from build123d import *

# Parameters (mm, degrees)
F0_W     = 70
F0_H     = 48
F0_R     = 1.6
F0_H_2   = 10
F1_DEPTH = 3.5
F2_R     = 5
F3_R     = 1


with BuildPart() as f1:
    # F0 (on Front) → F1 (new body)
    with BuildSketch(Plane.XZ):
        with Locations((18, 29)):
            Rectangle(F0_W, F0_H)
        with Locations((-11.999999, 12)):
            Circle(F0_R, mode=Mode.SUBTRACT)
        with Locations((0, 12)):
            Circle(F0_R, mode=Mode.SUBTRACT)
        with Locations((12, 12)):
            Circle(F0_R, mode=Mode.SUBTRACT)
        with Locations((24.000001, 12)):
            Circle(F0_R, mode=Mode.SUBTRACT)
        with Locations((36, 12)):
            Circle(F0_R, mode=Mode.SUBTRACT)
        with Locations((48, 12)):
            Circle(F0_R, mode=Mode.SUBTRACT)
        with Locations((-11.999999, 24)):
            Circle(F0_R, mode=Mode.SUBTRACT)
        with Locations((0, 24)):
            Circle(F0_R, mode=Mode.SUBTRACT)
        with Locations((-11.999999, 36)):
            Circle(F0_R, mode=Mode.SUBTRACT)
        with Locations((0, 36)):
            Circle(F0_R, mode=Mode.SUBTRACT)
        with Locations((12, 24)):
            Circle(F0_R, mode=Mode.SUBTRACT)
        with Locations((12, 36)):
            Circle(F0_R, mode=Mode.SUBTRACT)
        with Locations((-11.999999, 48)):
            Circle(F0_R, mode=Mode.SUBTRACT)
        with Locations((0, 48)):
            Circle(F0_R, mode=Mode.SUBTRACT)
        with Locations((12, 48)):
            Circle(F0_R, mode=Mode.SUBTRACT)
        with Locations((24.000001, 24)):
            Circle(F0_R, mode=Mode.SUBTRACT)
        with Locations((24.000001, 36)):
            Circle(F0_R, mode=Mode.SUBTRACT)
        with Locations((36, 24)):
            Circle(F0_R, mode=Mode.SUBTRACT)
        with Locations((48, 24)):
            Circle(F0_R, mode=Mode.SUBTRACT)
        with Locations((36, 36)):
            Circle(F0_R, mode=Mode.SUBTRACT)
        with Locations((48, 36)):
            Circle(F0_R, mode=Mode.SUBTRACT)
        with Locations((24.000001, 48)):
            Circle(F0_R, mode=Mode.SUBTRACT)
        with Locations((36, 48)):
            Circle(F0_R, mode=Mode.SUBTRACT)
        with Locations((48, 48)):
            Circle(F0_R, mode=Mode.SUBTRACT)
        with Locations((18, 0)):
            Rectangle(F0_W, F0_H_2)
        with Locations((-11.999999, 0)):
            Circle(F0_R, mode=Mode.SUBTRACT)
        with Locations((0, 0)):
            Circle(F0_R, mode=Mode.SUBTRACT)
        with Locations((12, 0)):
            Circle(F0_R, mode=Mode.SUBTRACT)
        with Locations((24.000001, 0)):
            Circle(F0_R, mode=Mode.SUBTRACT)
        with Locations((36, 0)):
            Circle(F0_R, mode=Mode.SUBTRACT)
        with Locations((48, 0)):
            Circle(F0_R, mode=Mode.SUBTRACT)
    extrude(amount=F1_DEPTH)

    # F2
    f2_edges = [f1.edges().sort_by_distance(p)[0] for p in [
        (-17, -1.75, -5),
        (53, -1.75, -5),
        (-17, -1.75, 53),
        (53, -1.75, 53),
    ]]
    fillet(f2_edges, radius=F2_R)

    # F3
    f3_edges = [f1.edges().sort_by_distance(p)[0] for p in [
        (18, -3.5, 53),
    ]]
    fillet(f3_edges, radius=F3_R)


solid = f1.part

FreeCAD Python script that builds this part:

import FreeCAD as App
import Part
import Sketcher
Q = App.Units.Quantity


def edges_at(feature, points):
    """Names of the edges that pass closest to the given points."""
    edges = feature.Shape.Edges
    near = lambda p: min(range(len(edges)), key=lambda i: edges[i].distToShape(Part.Vertex(*p))[0])
    return sorted({f"Edge{near(p) + 1}" for p in points})


def add_polygon(sketch, points):
    """Adds a closed chain of lines whose ends are joined by coincident constraints."""
    first, n = sketch.GeometryCount, len(points)
    for a, b in zip(points, points[1:] + points[:1]):
        sketch.addGeometry(Part.LineSegment(App.Vector(*a, 0), App.Vector(*b, 0)), False)
    for i in range(n):
        sketch.addConstraint(Sketcher.Constraint("Coincident", first + i, 2, first + (i + 1) % n, 1))

doc = App.newDocument("Part")
body = doc.addObject("PartDesign::Body", "Body")

sketch1 = body.newObject("Sketcher::SketchObject", "Sketch")
sketch1.AttachmentSupport = (doc.getObject("XZ_Plane"), [""])
sketch1.MapMode = "FlatFace"
add_polygon(sketch1, [(-17, 53), (-17, -5), (53, -5), (53, 53)])
sketch1.addGeometry(Part.Circle(App.Vector(-12, 0, 0), App.Vector(0, 0, 1), 1.6), False)
sketch1.addGeometry(Part.Circle(App.Vector(0, 0, 0), App.Vector(0, 0, 1), 1.6), False)
sketch1.addGeometry(Part.Circle(App.Vector(12, 0, 0), App.Vector(0, 0, 1), 1.6), False)
sketch1.addGeometry(Part.Circle(App.Vector(-12, 12, 0), App.Vector(0, 0, 1), 1.6), False)
sketch1.addGeometry(Part.Circle(App.Vector(0, 12, 0), App.Vector(0, 0, 1), 1.6), False)
sketch1.addGeometry(Part.Circle(App.Vector(12, 12, 0), App.Vector(0, 0, 1), 1.6), False)
sketch1.addGeometry(Part.Circle(App.Vector(24, 0, 0), App.Vector(0, 0, 1), 1.6), False)
sketch1.addGeometry(Part.Circle(App.Vector(36, 0, 0), App.Vector(0, 0, 1), 1.6), False)
sketch1.addGeometry(Part.Circle(App.Vector(48, 0, 0), App.Vector(0, 0, 1), 1.6), False)
sketch1.addGeometry(Part.Circle(App.Vector(24, 12, 0), App.Vector(0, 0, 1), 1.6), False)
sketch1.addGeometry(Part.Circle(App.Vector(36, 12, 0), App.Vector(0, 0, 1), 1.6), False)
sketch1.addGeometry(Part.Circle(App.Vector(48, 12, 0), App.Vector(0, 0, 1), 1.6), False)
sketch1.addGeometry(Part.Circle(App.Vector(-12, 24, 0), App.Vector(0, 0, 1), 1.6), False)
sketch1.addGeometry(Part.Circle(App.Vector(0, 24, 0), App.Vector(0, 0, 1), 1.6), False)
sketch1.addGeometry(Part.Circle(App.Vector(-12, 36, 0), App.Vector(0, 0, 1), 1.6), False)
sketch1.addGeometry(Part.Circle(App.Vector(0, 36, 0), App.Vector(0, 0, 1), 1.6), False)
sketch1.addGeometry(Part.Circle(App.Vector(12, 24, 0), App.Vector(0, 0, 1), 1.6), False)
sketch1.addGeometry(Part.Circle(App.Vector(12, 36, 0), App.Vector(0, 0, 1), 1.6), False)
sketch1.addGeometry(Part.Circle(App.Vector(-12, 48, 0), App.Vector(0, 0, 1), 1.6), False)
sketch1.addGeometry(Part.Circle(App.Vector(0, 48, 0), App.Vector(0, 0, 1), 1.6), False)
sketch1.addGeometry(Part.Circle(App.Vector(12, 48, 0), App.Vector(0, 0, 1), 1.6), False)
sketch1.addGeometry(Part.Circle(App.Vector(24, 24, 0), App.Vector(0, 0, 1), 1.6), False)
sketch1.addGeometry(Part.Circle(App.Vector(24, 36, 0), App.Vector(0, 0, 1), 1.6), False)
sketch1.addGeometry(Part.Circle(App.Vector(36, 24, 0), App.Vector(0, 0, 1), 1.6), False)
sketch1.addGeometry(Part.Circle(App.Vector(48, 24, 0), App.Vector(0, 0, 1), 1.6), False)
sketch1.addGeometry(Part.Circle(App.Vector(36, 36, 0), App.Vector(0, 0, 1), 1.6), False)
sketch1.addGeometry(Part.Circle(App.Vector(48, 36, 0), App.Vector(0, 0, 1), 1.6), False)
sketch1.addGeometry(Part.Circle(App.Vector(24, 48, 0), App.Vector(0, 0, 1), 1.6), False)
sketch1.addGeometry(Part.Circle(App.Vector(36, 48, 0), App.Vector(0, 0, 1), 1.6), False)
sketch1.addGeometry(Part.Circle(App.Vector(48, 48, 0), App.Vector(0, 0, 1), 1.6), False)
sketch1.addConstraint([
    Sketcher.Constraint("Vertical", 0),
    Sketcher.Constraint("Horizontal", 1),
    Sketcher.Constraint("Vertical", 2),
    Sketcher.Constraint("Horizontal", 3),
    Sketcher.Constraint("Coincident", 5, 3, -1, 1),
    Sketcher.Constraint("Equal", 4, 5),
    Sketcher.Constraint("Equal", 5, 6),
    Sketcher.Constraint("Equal", 6, 7),
    Sketcher.Constraint("Equal", 7, 8),
    Sketcher.Constraint("Equal", 8, 9),
    Sketcher.Constraint("Equal", 9, 10),
    Sketcher.Constraint("Equal", 10, 11),
    Sketcher.Constraint("Equal", 11, 12),
    Sketcher.Constraint("Equal", 12, 13),
    Sketcher.Constraint("Equal", 13, 14),
    Sketcher.Constraint("Equal", 14, 15),
    Sketcher.Constraint("Equal", 15, 16),
    Sketcher.Constraint("Equal", 16, 17),
    Sketcher.Constraint("Equal", 17, 18),
    Sketcher.Constraint("Equal", 18, 19),
    Sketcher.Constraint("Equal", 19, 20),
    Sketcher.Constraint("Equal", 20, 21),
    Sketcher.Constraint("Equal", 21, 22),
    Sketcher.Constraint("Equal", 22, 23),
    Sketcher.Constraint("Equal", 23, 24),
    Sketcher.Constraint("Equal", 24, 25),
    Sketcher.Constraint("Equal", 25, 26),
    Sketcher.Constraint("Equal", 26, 27),
    Sketcher.Constraint("Equal", 27, 28),
    Sketcher.Constraint("Equal", 28, 29),
    Sketcher.Constraint("Equal", 29, 30),
    Sketcher.Constraint("Equal", 30, 31),
    Sketcher.Constraint("Equal", 31, 32),
    Sketcher.Constraint("Equal", 32, 33),
    Sketcher.Constraint("Symmetric", 4, 3, 6, 3, -1, 1),
    Sketcher.Constraint("Symmetric", 7, 3, 9, 3, -2),
    Sketcher.Constraint("Symmetric", 16, 3, 20, 3, -2),
    Sketcher.Constraint("Symmetric", 18, 3, 21, 3, -2),
    Sketcher.Constraint("Symmetric", 22, 3, 24, 3, -2),
    Sketcher.Constraint("PointOnObject", 4, 3, -1),
    Sketcher.Constraint("PointOnObject", 8, 3, -2),
    Sketcher.Constraint("PointOnObject", 10, 3, -1),
    Sketcher.Constraint("PointOnObject", 11, 3, -1),
    Sketcher.Constraint("PointOnObject", 12, 3, -1),
    Sketcher.Constraint("PointOnObject", 17, 3, -2),
    Sketcher.Constraint("PointOnObject", 19, 3, -2),
    Sketcher.Constraint("PointOnObject", 23, 3, -2),
    Sketcher.Constraint("Horizontal", 7, 3, 8, 3),
    Sketcher.Constraint("Horizontal", 9, 3, 13, 3),
    Sketcher.Constraint("Horizontal", 13, 3, 14, 3),
    Sketcher.Constraint("Horizontal", 14, 3, 15, 3),
    Sketcher.Constraint("Horizontal", 16, 3, 17, 3),
    Sketcher.Constraint("Horizontal", 18, 3, 19, 3),
    Sketcher.Constraint("Horizontal", 22, 3, 23, 3),
    Sketcher.Constraint("Horizontal", 20, 3, 25, 3),
    Sketcher.Constraint("Horizontal", 21, 3, 26, 3),
    Sketcher.Constraint("Horizontal", 25, 3, 27, 3),
    Sketcher.Constraint("Horizontal", 27, 3, 28, 3),
    Sketcher.Constraint("Horizontal", 26, 3, 29, 3),
    Sketcher.Constraint("Horizontal", 29, 3, 30, 3),
    Sketcher.Constraint("Horizontal", 24, 3, 31, 3),
    Sketcher.Constraint("Horizontal", 31, 3, 32, 3),
    Sketcher.Constraint("Horizontal", 32, 3, 33, 3),
    Sketcher.Constraint("Vertical", 4, 3, 7, 3),
    Sketcher.Constraint("Vertical", 10, 3, 13, 3),
    Sketcher.Constraint("Vertical", 11, 3, 14, 3),
    Sketcher.Constraint("Vertical", 12, 3, 15, 3),
    Sketcher.Constraint("Vertical", 7, 3, 16, 3),
    Sketcher.Constraint("Vertical", 16, 3, 18, 3),
    Sketcher.Constraint("Vertical", 18, 3, 22, 3),
    Sketcher.Constraint("Vertical", 13, 3, 25, 3),
    Sketcher.Constraint("Vertical", 25, 3, 26, 3),
    Sketcher.Constraint("Vertical", 14, 3, 27, 3),
    Sketcher.Constraint("Vertical", 15, 3, 28, 3),
    Sketcher.Constraint("Vertical", 27, 3, 29, 3),
    Sketcher.Constraint("Vertical", 28, 3, 30, 3),
    Sketcher.Constraint("Vertical", 26, 3, 31, 3),
    Sketcher.Constraint("Vertical", 29, 3, 32, 3),
    Sketcher.Constraint("Vertical", 30, 3, 33, 3),
    Sketcher.Constraint("Diameter", 4, Q("3.2 mm")),
    Sketcher.Constraint("DistanceX", 1, 1, 1, 2, Q("70 mm")),
    Sketcher.Constraint("DistanceY", 0, 2, 0, 1, Q("58 mm")),
    Sketcher.Constraint("DistanceX", 4, 3, -1, 1, Q("11.999999 mm")),
    Sketcher.Constraint("DistanceY", -1, 1, 7, 3, Q("12 mm")),
    Sketcher.Constraint("DistanceX", -1, 1, 10, 3, Q("24.000001 mm")),
    Sketcher.Constraint("DistanceX", -1, 1, 11, 3, Q("36 mm")),
    Sketcher.Constraint("DistanceX", -1, 1, 12, 3, Q("48 mm")),
    Sketcher.Constraint("DistanceY", -1, 1, 16, 3, Q("24 mm")),
    Sketcher.Constraint("DistanceY", -1, 1, 18, 3, Q("36 mm")),
    Sketcher.Constraint("DistanceY", -1, 1, 22, 3, Q("48 mm")),
    Sketcher.Constraint("DistanceX", 0, 2, -1, 1, Q("17 mm")),
    Sketcher.Constraint("DistanceY", 0, 2, -1, 1, Q("5 mm")),
])
pad1 = body.newObject("PartDesign::Pad", "Pad")
pad1.Profile = sketch1
pad1.Length = 3.5
doc.recompute()

fillet = body.newObject("PartDesign::Fillet", "Fillet")
fillet.Base = (pad1, edges_at(pad1, [
    (-17, -1.75, -5),
    (53, -1.75, -5),
    (-17, -1.75, 53),
    (53, -1.75, 53),
]))
fillet.Radius = 5
doc.recompute()

fillet2 = body.newObject("PartDesign::Fillet", "Fillet001")
fillet2.Base = (fillet, edges_at(fillet, [(18, -3.5, 53)]))
fillet2.Radius = 1

doc.recompute()
